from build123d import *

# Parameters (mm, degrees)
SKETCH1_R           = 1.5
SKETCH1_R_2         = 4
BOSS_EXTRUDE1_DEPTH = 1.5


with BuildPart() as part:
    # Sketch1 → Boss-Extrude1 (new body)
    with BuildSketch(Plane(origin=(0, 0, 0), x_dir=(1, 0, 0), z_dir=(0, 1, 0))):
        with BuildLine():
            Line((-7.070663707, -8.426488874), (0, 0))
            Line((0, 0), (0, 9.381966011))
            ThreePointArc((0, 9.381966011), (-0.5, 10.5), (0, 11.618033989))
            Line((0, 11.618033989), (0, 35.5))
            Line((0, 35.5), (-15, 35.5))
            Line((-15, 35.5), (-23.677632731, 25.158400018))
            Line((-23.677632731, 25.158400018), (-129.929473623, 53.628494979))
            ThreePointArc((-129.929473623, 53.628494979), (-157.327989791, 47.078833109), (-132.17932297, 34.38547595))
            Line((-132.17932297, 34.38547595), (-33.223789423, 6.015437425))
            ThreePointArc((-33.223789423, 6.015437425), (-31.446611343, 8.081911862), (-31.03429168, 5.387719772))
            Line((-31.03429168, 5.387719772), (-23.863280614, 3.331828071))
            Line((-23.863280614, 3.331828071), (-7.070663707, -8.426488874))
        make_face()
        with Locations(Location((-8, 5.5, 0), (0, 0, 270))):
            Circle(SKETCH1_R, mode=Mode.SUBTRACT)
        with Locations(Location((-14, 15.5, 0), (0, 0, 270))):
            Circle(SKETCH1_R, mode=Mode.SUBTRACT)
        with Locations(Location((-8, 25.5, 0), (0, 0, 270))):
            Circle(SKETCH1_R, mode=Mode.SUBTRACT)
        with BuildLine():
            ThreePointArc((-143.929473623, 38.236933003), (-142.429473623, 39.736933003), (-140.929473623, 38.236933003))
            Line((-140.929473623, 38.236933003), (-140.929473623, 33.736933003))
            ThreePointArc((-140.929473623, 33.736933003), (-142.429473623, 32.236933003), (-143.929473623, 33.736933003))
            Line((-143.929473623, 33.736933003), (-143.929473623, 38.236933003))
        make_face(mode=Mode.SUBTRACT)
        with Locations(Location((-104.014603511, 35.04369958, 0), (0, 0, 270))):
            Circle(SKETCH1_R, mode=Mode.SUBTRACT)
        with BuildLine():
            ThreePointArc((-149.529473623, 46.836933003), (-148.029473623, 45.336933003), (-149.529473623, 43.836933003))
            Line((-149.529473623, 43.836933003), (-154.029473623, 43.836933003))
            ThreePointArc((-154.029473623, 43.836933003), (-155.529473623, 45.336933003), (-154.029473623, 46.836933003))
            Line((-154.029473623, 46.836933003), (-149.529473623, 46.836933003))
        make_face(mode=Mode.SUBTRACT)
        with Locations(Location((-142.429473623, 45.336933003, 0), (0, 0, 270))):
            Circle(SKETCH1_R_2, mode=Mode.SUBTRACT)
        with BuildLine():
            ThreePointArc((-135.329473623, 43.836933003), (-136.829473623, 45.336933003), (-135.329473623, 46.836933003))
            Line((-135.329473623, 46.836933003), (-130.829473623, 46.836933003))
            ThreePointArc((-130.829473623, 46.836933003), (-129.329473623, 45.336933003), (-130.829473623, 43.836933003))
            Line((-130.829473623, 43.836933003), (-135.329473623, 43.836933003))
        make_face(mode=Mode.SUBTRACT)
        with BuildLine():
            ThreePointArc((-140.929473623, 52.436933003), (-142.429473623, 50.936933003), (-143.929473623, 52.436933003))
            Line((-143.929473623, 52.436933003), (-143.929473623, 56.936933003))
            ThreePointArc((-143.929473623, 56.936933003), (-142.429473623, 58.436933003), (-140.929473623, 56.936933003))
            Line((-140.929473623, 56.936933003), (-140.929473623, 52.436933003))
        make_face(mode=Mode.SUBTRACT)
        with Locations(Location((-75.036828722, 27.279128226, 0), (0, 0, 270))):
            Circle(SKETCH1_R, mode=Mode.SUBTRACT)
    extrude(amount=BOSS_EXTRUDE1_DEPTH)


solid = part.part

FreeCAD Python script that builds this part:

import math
import FreeCAD as App
import Part
import Sketcher
from FreeCAD import Vector
Q = App.Units.Quantity

doc = App.newDocument("Part")
params = doc.addObject("Spreadsheet::Sheet", "Params")
for row, (alias, value) in enumerate([
    ("sketch1_diameter", "3 mm"),
    ("sketch1_diameter2", "8 mm"),
    ("sketch1_radius", "15 mm"),
    ("sketch1_width", "15 mm"),
    ("sketch1_length", "11 mm"),
    ("pad1_length", "1.5 mm"),
], start=1):
    params.set(f"A{row}", alias)
    params.set(f"B{row}", "=" + value)
    params.setAlias(f"B{row}", alias)

body = doc.addObject("PartDesign::Body", "Body")

sketch1 = body.newObject("Sketcher::SketchObject", "Sketch")
sketch1.AttachmentSupport = (doc.getObject("XZ_Plane"), [""])
sketch1.MapMode = "FlatFace"
sketch1.addGeometry([
    Part.LineSegment(Vector(-7.1, 8.4, 0), Vector(0, 0, 0)),
    Part.LineSegment(Vector(0, 0, 0), Vector(0, -9.4, 0)),
    Part.ArcOfCircle(Part.Circle(Vector(1, -10.5, 0), Vector(0, 0, 1), 1.5), math.radians(132), math.radians(228)),
    Part.LineSegment(Vector(0, -11.6, 0), Vector(0, -35.5, 0)),
    Part.LineSegment(Vector(0, -35.5, 0), Vector(-15, -35.5, 0)),
    Part.LineSegment(Vector(-15, -35.5, 0), Vector(-23.7, -25.2, 0)),
    Part.LineSegment(Vector(-23.7, -25.2, 0), Vector(-129.9, -53.6, 0)),
    Part.ArcOfCircle(Part.Circle(Vector(-142.4, -45.3, 0), Vector(0, 0, 1), 15), math.radians(47), math.radians(326)),
    Part.LineSegment(Vector(-132.2, -34.4, 0), Vector(-33.2, -6, 0)),
    Part.ArcOfCircle(Part.Circle(Vector(-31.9, -6.6, 0), Vector(0, 0, 1), 1.5), math.radians(155), math.radians(417)),
    Part.LineSegment(Vector(-31, -5.4, 0), Vector(-23.9, -3.3, 0)),
    Part.LineSegment(Vector(-23.9, -3.3, 0), Vector(-7.1, 8.4, 0)),
    Part.Circle(Vector(-8, -5.5, 0), Vector(0, 0, 1), 1.5),
    Part.Circle(Vector(-14, -15.5, 0), Vector(0, 0, 1), 1.5),
    Part.Circle(Vector(-75, -27.3, 0), Vector(0, 0, 1), 1.5),
    Part.Circle(Vector(-8, -25.5, 0), Vector(0, 0, 1), 1.5),
    Part.LineSegment(Vector(-143.9, -33.7, 0), Vector(-143.9, -38.2, 0)),
    Part.ArcOfCircle(Part.Circle(Vector(-142.4, -38.2, 0), Vector(0, 0, 1), 1.5), math.radians(180), math.radians(360)),
    Part.LineSegment(Vector(-140.9, -38.2, 0), Vector(-140.9, -33.7, 0)),
    Part.ArcOfCircle(Part.Circle(Vector(-142.4, -33.7, 0), Vector(0, 0, 1), 1.5), math.radians(0), math.radians(180)),
    Part.Circle(Vector(-104, -35, 0), Vector(0, 0, 1), 1.5),
    Part.LineSegment(Vector(-154, -46.8, 0), Vector(-149.5, -46.8, 0)),
    Part.ArcOfCircle(Part.Circle(Vector(-149.5, -45.3, 0), Vector(0, 0, 1), 1.5), math.radians(-90), math.radians(90)),
    Part.LineSegment(Vector(-149.5, -43.8, 0), Vector(-154, -43.8, 0)),
    Part.ArcOfCircle(Part.Circle(Vector(-154, -45.3, 0), Vector(0, 0, 1), 1.5), math.radians(90), math.radians(270)),
    Part.Circle(Vector(-142.4, -45.3, 0), Vector(0, 0, 1), 4),
    Part.LineSegment(Vector(-130.8, -43.8, 0), Vector(-135.3, -43.8, 0)),
    Part.ArcOfCircle(Part.Circle(Vector(-135.3, -45.3, 0), Vector(0, 0, 1), 1.5), math.radians(90), math.radians(270)),
    Part.LineSegment(Vector(-135.3, -46.8, 0), Vector(-130.8, -46.8, 0)),
    Part.ArcOfCircle(Part.Circle(Vector(-130.8, -45.3, 0), Vector(0, 0, 1), 1.5), math.radians(-90), math.radians(90)),
    Part.LineSegment(Vector(-140.9, -56.9, 0), Vector(-140.9, -52.4, 0)),
    Part.ArcOfCircle(Part.Circle(Vector(-142.4, -52.4, 0), Vector(0, 0, 1), 1.5), math.radians(0), math.radians(180)),
    Part.LineSegment(Vector(-143.9, -52.4, 0), Vector(-143.9, -56.9, 0)),
    Part.ArcOfCircle(Part.Circle(Vector(-142.4, -56.9, 0), Vector(0, 0, 1), 1.5), math.radians(180), math.radians(360)),
], False)
sketch1.addConstraint([
    Sketcher.Constraint("Coincident", 0, 2, 1, 1),
    Sketcher.Constraint("Coincident", 1, 2, 2, 1),
    Sketcher.Constraint("Coincident", 2, 2, 3, 1),
    Sketcher.Constraint("Coincident", 3, 2, 4, 1),
    Sketcher.Constraint("Coincident", 4, 2, 5, 1),
    Sketcher.Constraint("Coincident", 5, 2, 6, 1),
    Sketcher.Constraint("Coincident", 6, 2, 7, 2),
    Sketcher.Constraint("Coincident", 7, 1, 8, 1),
    Sketcher.Constraint("Coincident", 8, 2, 9, 1),
    Sketcher.Constraint("Coincident", 9, 2, 10, 1),
    Sketcher.Constraint("Coincident", 10, 2, 11, 1),
    Sketcher.Constraint("Coincident", 11, 2, 0, 1),
    Sketcher.Constraint("Tangent", 16, 2, 17, 1),
    Sketcher.Constraint("Tangent", 17, 2, 18, 1),
    Sketcher.Constraint("Tangent", 18, 2, 19, 1),
    Sketcher.Constraint("Tangent", 19, 2, 16, 1),
    Sketcher.Constraint("Tangent", 21, 2, 22, 1),
    Sketcher.Constraint("Tangent", 22, 2, 23, 1),
    Sketcher.Constraint("Tangent", 23, 2, 24, 1),
    Sketcher.Constraint("Tangent", 24, 2, 21, 1),
    Sketcher.Constraint("Tangent", 26, 2, 27, 1),
    Sketcher.Constraint("Tangent", 27, 2, 28, 1),
    Sketcher.Constraint("Tangent", 28, 2, 29, 1),
    Sketcher.Constraint("Tangent", 29, 2, 26, 1),
    Sketcher.Constraint("Tangent", 30, 2, 31, 1),
    Sketcher.Constraint("Tangent", 31, 2, 32, 1),
    Sketcher.Constraint("Tangent", 32, 2, 33, 1),
    Sketcher.Constraint("Tangent", 33, 2, 30, 1),
    Sketcher.Constraint("Vertical", 1),
    Sketcher.Constraint("Vertical", 3),
    Sketcher.Constraint("Horizontal", 4),
    Sketcher.Constraint("Vertical", 16),
    Sketcher.Constraint("Vertical", 18),
    Sketcher.Constraint("Horizontal", 21),
    Sketcher.Constraint("Horizontal", 23),
    Sketcher.Constraint("Horizontal", 26),
    Sketcher.Constraint("Horizontal", 28),
    Sketcher.Constraint("Vertical", 30),
    Sketcher.Constraint("Vertical", 32),
    Sketcher.Constraint("Coincident", 0, 2, -1, 1),
    Sketcher.Constraint("Coincident", 25, 3, 7, 3),
    Sketcher.Constraint("Equal", 2, 9),
    Sketcher.Constraint("Equal", 9, 12),
    Sketcher.Constraint("Equal", 12, 13),
    Sketcher.Constraint("Equal", 13, 14),
    Sketcher.Constraint("Equal", 14, 15),
    Sketcher.Constraint("Equal", 15, 17),
    Sketcher.Constraint("Equal", 19, 20),
    Sketcher.Constraint("Equal", 20, 22),
    Sketcher.Constraint("Equal", 24, 27),
    Sketcher.Constraint("Equal", 29, 31),
    Sketcher.Constraint("PointOnObject", 2, 2, -2),
    Sketcher.Constraint("Parallel", 0, 5),
    Sketcher.Constraint("Parallel", 8, 10),
    Sketcher.Constraint("Horizontal", 7, 3, 22, 3),
    Sketcher.Constraint("Horizontal", 25, 3, 27, 3),
    Sketcher.Constraint("Vertical", 12, 3, 15, 3),
    Sketcher.Constraint("Vertical", 7, 3, 17, 3),
    Sketcher.Constraint("Vertical", 25, 3, 31, 3),
    Sketcher.Constraint("Equal", 23, 26),
    Sketcher.Constraint("Equal", 28, 16),
    Sketcher.Constraint("Equal", 18, 30),
    Sketcher.Constraint("Diameter", 12, Q("3 mm")),
    Sketcher.Constraint("Diameter", 25, Q("8 mm")),
    Sketcher.Constraint("Radius", 7, Q("15 mm")),
    Sketcher.Constraint("DistanceX", 4, 2, 4, 1, Q("15 mm")),
    Sketcher.Constraint("Angle", 0, Q("-50 deg")),
    Sketcher.Constraint("Angle", 6, Q("-165 deg")),
    Sketcher.Constraint("Angle", 11, Q("35 deg")),
    Sketcher.Constraint("Distance", 0, Q("11 mm")),
    Sketcher.Constraint("Distance", 6, Q("110 mm")),
    Sketcher.Constraint("DistanceX", 21, 1, 21, 2, Q("4.5 mm")),
    Sketcher.Constraint("DistanceX", -1, 1, 2, 3, Q("1 mm")),
    Sketcher.Constraint("DistanceX", 12, 3, -1, 1, Q("8 mm")),
    Sketcher.Constraint("DistanceX", 13, 3, -1, 1, Q("14 mm")),
    Sketcher.Constraint("DistanceY", 2, 3, 12, 3, Q("5 mm")),
    Sketcher.Constraint("DistanceY", 13, 3, 12, 3, Q("10 mm")),
    Sketcher.Constraint("DistanceY", 15, 3, 13, 3, Q("10 mm")),
    Sketcher.Constraint("DistanceY", 3, 2, 15, 3, Q("10 mm")),
    Sketcher.Constraint("Distance", 5, Q("13.5 mm")),
    Sketcher.Constraint("Distance", 11, Q("20.5 mm")),
    Sketcher.Constraint("DistanceY", 2, 3, -1, 1, Q("10.5 mm")),
    Sketcher.Constraint("DistanceY", 7, 3, 17, 3, Q("7.1 mm")),
    Sketcher.Constraint("DistanceX", 22, 3, 7, 3, Q("7.1 mm")),
    Sketcher.Constraint("DistanceX", 7, 3, 27, 3, Q("7.1 mm")),
    Sketcher.Constraint("DistanceY", 31, 3, 7, 3, Q("7.1 mm")),
    Sketcher.Constraint("DistanceX", 29, 3, 6, 2, Q("0.9 mm")),
    Sketcher.Constraint("DistanceX", 9, 3, -1, 1, Q("31.86 mm")),
    Sketcher.Constraint("DistanceY", 9, 3, -1, 1, Q("6.64 mm")),
    Sketcher.Constraint("Distance", 10, Q("7.459899 mm")),
    Sketcher.Constraint("DistanceY", 20, 3, -1, 1, Q("35.0437 mm")),
    Sketcher.Constraint("DistanceX", 14, 3, -1, 1, Q("75.036829 mm")),
    Sketcher.Constraint("DistanceY", 14, 3, -1, 1, Q("27.279128 mm")),
    Sketcher.Constraint("DistanceX", 8, 2, -1, 1, Q("33.223789 mm")),
    Sketcher.Constraint("DistanceX", 19, 3, 20, 3, Q("38.41487 mm")),
])
sketch1.setExpression("Constraints[62]", "Params.sketch1_diameter")
sketch1.setExpression("Constraints[63]", "Params.sketch1_diameter2")
sketch1.setExpression("Constraints[64]", "Params.sketch1_radius")
sketch1.setExpression("Constraints[65]", "Params.sketch1_width")
sketch1.setExpression("Constraints[69]", "Params.sketch1_length")
pad1 = body.newObject("PartDesign::Pad", "Pad")
pad1.Profile = sketch1
pad1.setExpression("Length", "Params.pad1_length")
pad1.Reversed = True

doc.recompute()
